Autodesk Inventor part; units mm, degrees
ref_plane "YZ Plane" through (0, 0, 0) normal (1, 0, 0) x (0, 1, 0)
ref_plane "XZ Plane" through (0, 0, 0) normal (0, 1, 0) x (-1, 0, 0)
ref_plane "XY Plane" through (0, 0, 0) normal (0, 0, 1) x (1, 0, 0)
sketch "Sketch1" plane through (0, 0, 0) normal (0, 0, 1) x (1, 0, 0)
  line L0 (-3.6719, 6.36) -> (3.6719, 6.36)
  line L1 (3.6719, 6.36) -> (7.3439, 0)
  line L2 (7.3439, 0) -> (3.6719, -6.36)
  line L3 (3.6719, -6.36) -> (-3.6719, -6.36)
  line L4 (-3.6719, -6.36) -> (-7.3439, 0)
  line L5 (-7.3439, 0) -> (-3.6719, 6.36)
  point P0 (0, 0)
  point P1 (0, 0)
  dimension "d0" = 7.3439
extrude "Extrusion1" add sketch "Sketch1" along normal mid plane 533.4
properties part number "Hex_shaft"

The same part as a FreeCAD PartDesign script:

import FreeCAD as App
import Part
import Sketcher
Q = App.Units.Quantity


def add_polygon(sketch, points):
    """Adds a closed chain of lines whose ends are joined by coincident constraints."""
    first, n = sketch.GeometryCount, len(points)
    for a, b in zip(points, points[1:] + points[:1]):
        sketch.addGeometry(Part.LineSegment(App.Vector(*a, 0), App.Vector(*b, 0)), False)
    for i in range(n):
        sketch.addConstraint(Sketcher.Constraint("Coincident", first + i, 2, first + (i + 1) % n, 1))

doc = App.newDocument("Part")
body = doc.addObject("PartDesign::Body", "Body")

# Sketch on XY plane
sketch1 = body.newObject("Sketcher::SketchObject", "Sketch")
sketch1.AttachmentSupport = (doc.getObject("XY_Plane"), [""])
sketch1.MapMode = "FlatFace"
add_polygon(sketch1, [(4, 6), (-4, 6), (-7, 0), (-4, -6), (4, -6), (7, 0)])  # lines 0-5
sketch1.addConstraint([
    Sketcher.Constraint("Horizontal", 0),
    Sketcher.Constraint("Horizontal", 3),
    Sketcher.Constraint("Symmetric", 0, 2, 3, 2, -1, 1),
    Sketcher.Constraint("Symmetric", 1, 2, 4, 2, -1, 1),
    Sketcher.Constraint("PointOnObject", 1, 2, -1),
    Sketcher.Constraint("Parallel", 2, 5),
    Sketcher.Constraint("Vertical", 0, 2, 2, 2),
    Sketcher.Constraint("Angle", 1, Q("-120.0004 deg")),
    Sketcher.Constraint("DistanceX", 0, 2, 0, 1, 7.3438),
    Sketcher.Constraint("Distance", 1, 7.344),
])
pad1 = body.newObject("PartDesign::Pad", "Pad")
pad1.Profile = sketch1
pad1.Length = Q("21 in")
pad1.Midplane = True

doc.recompute()
